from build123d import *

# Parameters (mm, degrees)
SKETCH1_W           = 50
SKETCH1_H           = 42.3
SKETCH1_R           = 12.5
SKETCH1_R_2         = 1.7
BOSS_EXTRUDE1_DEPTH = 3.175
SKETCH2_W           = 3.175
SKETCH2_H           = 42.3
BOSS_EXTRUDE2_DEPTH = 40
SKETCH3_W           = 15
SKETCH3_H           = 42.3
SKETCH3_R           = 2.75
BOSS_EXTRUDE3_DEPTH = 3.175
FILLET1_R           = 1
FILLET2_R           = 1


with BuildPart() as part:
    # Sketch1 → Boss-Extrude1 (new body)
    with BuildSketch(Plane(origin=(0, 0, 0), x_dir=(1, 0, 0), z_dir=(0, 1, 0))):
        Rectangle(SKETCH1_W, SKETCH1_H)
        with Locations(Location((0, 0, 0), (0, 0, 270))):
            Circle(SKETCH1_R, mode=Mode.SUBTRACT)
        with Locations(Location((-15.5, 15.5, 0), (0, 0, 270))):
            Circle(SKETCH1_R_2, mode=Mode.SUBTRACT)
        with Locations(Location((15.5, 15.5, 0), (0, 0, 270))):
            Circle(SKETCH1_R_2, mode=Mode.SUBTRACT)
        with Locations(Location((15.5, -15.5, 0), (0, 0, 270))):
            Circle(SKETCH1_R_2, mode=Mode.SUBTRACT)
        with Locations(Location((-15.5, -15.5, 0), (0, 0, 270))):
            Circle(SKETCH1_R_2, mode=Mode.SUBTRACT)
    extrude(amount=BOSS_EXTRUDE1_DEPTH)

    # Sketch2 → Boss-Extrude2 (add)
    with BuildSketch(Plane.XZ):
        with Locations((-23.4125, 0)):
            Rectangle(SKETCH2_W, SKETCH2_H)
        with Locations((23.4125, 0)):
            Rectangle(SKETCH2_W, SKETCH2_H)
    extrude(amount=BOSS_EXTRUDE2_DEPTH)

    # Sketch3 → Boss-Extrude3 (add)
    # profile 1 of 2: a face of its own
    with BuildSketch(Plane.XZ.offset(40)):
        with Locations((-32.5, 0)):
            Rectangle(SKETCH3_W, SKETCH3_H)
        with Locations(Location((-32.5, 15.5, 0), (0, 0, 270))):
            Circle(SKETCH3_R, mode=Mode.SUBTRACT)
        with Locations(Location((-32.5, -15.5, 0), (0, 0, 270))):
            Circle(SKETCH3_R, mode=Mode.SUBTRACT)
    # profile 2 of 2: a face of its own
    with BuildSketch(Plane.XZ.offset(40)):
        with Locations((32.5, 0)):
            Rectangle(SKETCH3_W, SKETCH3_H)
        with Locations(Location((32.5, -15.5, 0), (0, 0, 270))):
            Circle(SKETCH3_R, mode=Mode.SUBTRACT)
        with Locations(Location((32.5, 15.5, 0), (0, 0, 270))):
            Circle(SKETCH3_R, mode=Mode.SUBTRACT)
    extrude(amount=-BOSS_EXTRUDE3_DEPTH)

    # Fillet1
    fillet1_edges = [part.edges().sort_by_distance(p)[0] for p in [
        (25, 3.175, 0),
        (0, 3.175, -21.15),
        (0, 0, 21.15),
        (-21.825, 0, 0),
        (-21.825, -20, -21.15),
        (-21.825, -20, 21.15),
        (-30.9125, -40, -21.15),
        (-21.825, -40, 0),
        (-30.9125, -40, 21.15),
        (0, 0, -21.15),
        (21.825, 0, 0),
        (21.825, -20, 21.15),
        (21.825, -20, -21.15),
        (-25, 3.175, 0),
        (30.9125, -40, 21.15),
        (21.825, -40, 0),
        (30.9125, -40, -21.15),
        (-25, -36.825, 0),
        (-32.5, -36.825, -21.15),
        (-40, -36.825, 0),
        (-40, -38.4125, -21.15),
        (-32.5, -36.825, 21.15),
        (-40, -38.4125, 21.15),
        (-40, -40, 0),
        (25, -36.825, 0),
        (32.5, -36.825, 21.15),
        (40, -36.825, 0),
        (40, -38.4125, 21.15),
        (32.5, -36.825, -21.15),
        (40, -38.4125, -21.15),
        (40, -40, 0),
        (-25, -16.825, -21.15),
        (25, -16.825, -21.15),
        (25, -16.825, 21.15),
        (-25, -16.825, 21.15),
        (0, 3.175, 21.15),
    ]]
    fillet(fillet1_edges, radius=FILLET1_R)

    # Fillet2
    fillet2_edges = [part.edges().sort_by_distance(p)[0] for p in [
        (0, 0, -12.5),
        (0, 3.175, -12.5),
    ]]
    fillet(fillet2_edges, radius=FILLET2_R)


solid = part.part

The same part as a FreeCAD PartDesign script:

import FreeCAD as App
import Part
import Sketcher

V = App.Vector


def edges_at(feature, points):
    """Names of the edges that pass closest to the given points."""
    edges = feature.Shape.Edges
    near = lambda p: min(range(len(edges)), key=lambda i: edges[i].distToShape(Part.Vertex(*p))[0])
    return sorted({f"Edge{near(p) + 1}" for p in points})


def add_polygon(sketch, points):
    """Adds a closed chain of lines whose ends are joined by coincident constraints."""
    first, n = sketch.GeometryCount, len(points)
    for a, b in zip(points, points[1:] + points[:1]):
        sketch.addGeometry(Part.LineSegment(App.Vector(*a, 0), App.Vector(*b, 0)), False)
    for i in range(n):
        sketch.addConstraint(Sketcher.Constraint("Coincident", first + i, 2, first + (i + 1) % n, 1))

doc = App.newDocument("Part")
params = doc.addObject("Spreadsheet::Sheet", "Params")
for row, (alias, value) in enumerate([
    ("sketch1_diameter", "25 mm"),
    ("sketch1_diameter2", "3.4 mm"),
    ("sketch1_width", "50 mm"),
    ("sketch1_height", "42.3 mm"),
    ("pad1_length", "3.175 mm"),
    ("sketch2_height", "42.3 mm"),
    ("pad2_length", "40 mm"),
    ("sketch3_diameter", "5.5 mm"),
    ("sketch3_width", "15 mm"),
    ("sketch3_height", "42.3 mm"),
    ("pad3_length", "3.175 mm"),
    ("fillet_radius", "1 mm"),
    ("fillet2_radius", "1 mm"),
], start=1):
    params.set(f"A{row}", alias)
    params.set(f"B{row}", "=" + value)
    params.setAlias(f"B{row}", alias)

body = doc.addObject("PartDesign::Body", "Body")

sketch1 = body.newObject("Sketcher::SketchObject", "Sketch")
sketch1.AttachmentSupport = (doc.getObject("XZ_Plane"), [""])
sketch1.MapMode = "FlatFace"
add_polygon(sketch1, [(-25, -21.15), (-25, 21.15), (25, 21.15), (25, -21.15)])
sketch1.addGeometry(Part.Circle(V(-15.5, 15.5, 0), V(0, 0, 1), 1.7), False)
sketch1.addGeometry(Part.Circle(V(15.5, 15.5, 0), V(0, 0, 1), 1.7), False)
sketch1.addGeometry(Part.Circle(V(-15.5, -15.5, 0), V(0, 0, 1), 1.7), False)
sketch1.addGeometry(Part.Circle(V(0, 0, 0), V(0, 0, 1), 12.5), False)
sketch1.addGeometry(Part.Circle(V(15.5, -15.5, 0), V(0, 0, 1), 1.7), False)
sketch1.addConstraint(Sketcher.Constraint("Vertical", 0))
sketch1.addConstraint(Sketcher.Constraint("Horizontal", 1))
sketch1.addConstraint(Sketcher.Constraint("Vertical", 2))
sketch1.addConstraint(Sketcher.Constraint("Horizontal", 3))
sketch1.addConstraint(Sketcher.Constraint("Coincident", 7, 3, -1, 1))
sketch1.addConstraint(Sketcher.Constraint("Equal", 4, 5))
sketch1.addConstraint(Sketcher.Constraint("Equal", 5, 6))
sketch1.addConstraint(Sketcher.Constraint("Equal", 6, 8))
sketch1.addConstraint(Sketcher.Constraint("Symmetric", 5, 3, 6, 3, -1, 1))
sketch1.addConstraint(Sketcher.Constraint("Symmetric", 4, 3, 8, 3, -1, 1))
sketch1.addConstraint(Sketcher.Constraint("Symmetric", 0, 2, 2, 2, -1, 1))
sketch1.addConstraint(Sketcher.Constraint("Symmetric", 4, 3, 5, 3, -2))
sketch1.addConstraint(Sketcher.Constraint("Diameter", 7, 25.0))
sketch1.addConstraint(Sketcher.Constraint("Diameter", 4, 3.4))
sketch1.addConstraint(Sketcher.Constraint("DistanceX", 1, 1, 1, 2, 50.0))
sketch1.addConstraint(Sketcher.Constraint("DistanceY", 0, 1, 0, 2, 42.3))
sketch1.addConstraint(Sketcher.Constraint("DistanceX", 4, 3, 5, 3, 31.0))
sketch1.addConstraint(Sketcher.Constraint("DistanceY", 6, 3, 4, 3, 31.0))
sketch1.setExpression("Constraints[16]", "Params.sketch1_diameter")
sketch1.setExpression("Constraints[17]", "Params.sketch1_diameter2")
sketch1.setExpression("Constraints[18]", "Params.sketch1_width")
sketch1.setExpression("Constraints[19]", "Params.sketch1_height")
pad1 = body.newObject("PartDesign::Pad", "Pad")
pad1.Profile = sketch1
pad1.setExpression("Length", "Params.pad1_length")
pad1.Reversed = True

sketch2 = body.newObject("Sketcher::SketchObject", "Sketch001")
sketch2.AttachmentSupport = (doc.getObject("XZ_Plane"), [""])
sketch2.MapMode = "FlatFace"
add_polygon(sketch2, [(-25, 21.15), (-25, -21.15), (-21.825, -21.15), (-21.825, 21.15)])
add_polygon(sketch2, [(21.825, 21.15), (21.825, -21.15), (25, -21.15), (25, 21.15)])
sketch2.addConstraint(Sketcher.Constraint("Vertical", 0))
sketch2.addConstraint(Sketcher.Constraint("Horizontal", 1))
sketch2.addConstraint(Sketcher.Constraint("Vertical", 2))
sketch2.addConstraint(Sketcher.Constraint("Horizontal", 3))
sketch2.addConstraint(Sketcher.Constraint("Vertical", 4))
sketch2.addConstraint(Sketcher.Constraint("Horizontal", 5))
sketch2.addConstraint(Sketcher.Constraint("Vertical", 6))
sketch2.addConstraint(Sketcher.Constraint("Horizontal", 7))
sketch2.addConstraint(Sketcher.Constraint("Symmetric", 2, 2, 4, 2, -1, 1))
sketch2.addConstraint(Sketcher.Constraint("Symmetric", 0, 2, 6, 2, -1, 1))
sketch2.addConstraint(Sketcher.Constraint("Horizontal", 1, 2, 4, 2))
sketch2.addConstraint(Sketcher.Constraint("DistanceY", 0, 2, 0, 1, 42.3))
sketch2.addConstraint(Sketcher.Constraint("DistanceX", 0, 2, -1, 1, 25.0))
sketch2.addConstraint(Sketcher.Constraint("DistanceX", 1, 1, 1, 2, 3.175))
sketch2.setExpression("Constraints[19]", "Params.sketch2_height")
pad2 = body.newObject("PartDesign::Pad", "Pad001")
pad2.Profile = sketch2
pad2.setExpression("Length", "Params.pad2_length")

sketch3 = body.newObject("Sketcher::SketchObject", "Sketch002")
sketch3.AttachmentSupport = (doc.getObject("XZ_Plane"), [""])
sketch3.MapMode = "FlatFace"
sketch3.AttachmentOffset = App.Placement(V(0, 0, 40), App.Rotation())
add_polygon(sketch3, [(-40, 21.15), (-40, -21.15), (-25, -21.15), (-25, 21.15)])
sketch3.addGeometry(Part.Circle(V(-32.5, -15.5, 0), V(0, 0, 1), 2.75), False)
sketch3.addGeometry(Part.Circle(V(-32.5, 15.5, 0), V(0, 0, 1), 2.75), False)
add_polygon(sketch3, [(25, 21.15), (25, -21.15), (40, -21.15), (40, 21.15)])
sketch3.addGeometry(Part.Circle(V(32.5, -15.5, 0), V(0, 0, 1), 2.75), False)
sketch3.addGeometry(Part.Circle(V(32.5, 15.5, 0), V(0, 0, 1), 2.75), False)
sketch3.addConstraint(Sketcher.Constraint("Vertical", 0))
sketch3.addConstraint(Sketcher.Constraint("Horizontal", 1))
sketch3.addConstraint(Sketcher.Constraint("Vertical", 2))
sketch3.addConstraint(Sketcher.Constraint("Horizontal", 3))
sketch3.addConstraint(Sketcher.Constraint("Vertical", 6))
sketch3.addConstraint(Sketcher.Constraint("Horizontal", 7))
sketch3.addConstraint(Sketcher.Constraint("Vertical", 8))
sketch3.addConstraint(Sketcher.Constraint("Horizontal", 9))
sketch3.addConstraint(Sketcher.Constraint("Equal", 4, 5))
sketch3.addConstraint(Sketcher.Constraint("Equal", 5, 10))
sketch3.addConstraint(Sketcher.Constraint("Equal", 10, 11))
sketch3.addConstraint(Sketcher.Constraint("Symmetric", 5, 3, 10, 3, -1, 1))
sketch3.addConstraint(Sketcher.Constraint("Symmetric", 4, 3, 11, 3, -1, 1))
sketch3.addConstraint(Sketcher.Constraint("Symmetric", 2, 2, 6, 2, -1, 1))
sketch3.addConstraint(Sketcher.Constraint("Symmetric", 0, 2, 8, 2, -1, 1))
sketch3.addConstraint(Sketcher.Constraint("Symmetric", 4, 3, 10, 3, -2))
sketch3.addConstraint(Sketcher.Constraint("Horizontal", 1, 2, 6, 2))
sketch3.addConstraint(Sketcher.Constraint("Diameter", 4, 5.5))
sketch3.addConstraint(Sketcher.Constraint("DistanceX", 1, 1, 1, 2, 15.0))
sketch3.addConstraint(Sketcher.Constraint("DistanceY", 0, 2, 0, 1, 42.3))
sketch3.addConstraint(Sketcher.Constraint("DistanceX", 0, 2, -1, 1, 40.0))
sketch3.addConstraint(Sketcher.Constraint("DistanceY", 4, 3, 5, 3, 31.0))
sketch3.addConstraint(Sketcher.Constraint("DistanceX", 4, 3, 10, 3, 65.0))
sketch3.setExpression("Constraints[25]", "Params.sketch3_diameter")
sketch3.setExpression("Constraints[26]", "Params.sketch3_width")
sketch3.setExpression("Constraints[27]", "Params.sketch3_height")
pad3 = body.newObject("PartDesign::Pad", "Pad002")
pad3.Profile = sketch3
pad3.setExpression("Length", "Params.pad3_length")
pad3.Reversed = True
doc.recompute()

fillet = body.newObject("PartDesign::Fillet", "Fillet")
fillet.Base = (pad3, edges_at(pad3, [
    (25, 3.175, 0),
    (0, 3.175, -21.15),
    (0, 0, 21.15),
    (-21.825, 0, 0),
    (-21.825, -20, -21.15),
    (-21.825, -20, 21.15),
    (-30.913, -40, -21.15),
    (-21.825, -40, 0),
    (-30.913, -40, 21.15),
    (0, 0, -21.15),
    (21.825, 0, 0),
    (21.825, -20, 21.15),
    (21.825, -20, -21.15),
    (-25, 3.175, 0),
    (30.913, -40, 21.15),
    (21.825, -40, 0),
    (30.913, -40, -21.15),
    (-25, -36.825, 0),
    (-32.5, -36.825, -21.15),
    (-40, -36.825, 0),
    (-40, -38.413, -21.15),
    (-32.5, -36.825, 21.15),
    (-40, -38.413, 21.15),
    (-40, -40, 0),
    (25, -36.825, 0),
    (32.5, -36.825, 21.15),
    (40, -36.825, 0),
    (40, -38.413, 21.15),
    (32.5, -36.825, -21.15),
    (40, -38.413, -21.15),
    (40, -40, 0),
    (-25, -16.825, -21.15),
    (25, -16.825, -21.15),
    (25, -16.825, 21.15),
    (-25, -16.825, 21.15),
    (0, 3.175, 21.15),
]))
fillet.setExpression("Radius", "Params.fillet_radius")
doc.recompute()

fillet2 = body.newObject("PartDesign::Fillet", "Fillet001")
fillet2.Base = (fillet, edges_at(fillet, [(0, 0, -12.5), (0, 3.175, -12.5)]))
fillet2.setExpression("Radius", "Params.fillet2_radius")

doc.recompute()
